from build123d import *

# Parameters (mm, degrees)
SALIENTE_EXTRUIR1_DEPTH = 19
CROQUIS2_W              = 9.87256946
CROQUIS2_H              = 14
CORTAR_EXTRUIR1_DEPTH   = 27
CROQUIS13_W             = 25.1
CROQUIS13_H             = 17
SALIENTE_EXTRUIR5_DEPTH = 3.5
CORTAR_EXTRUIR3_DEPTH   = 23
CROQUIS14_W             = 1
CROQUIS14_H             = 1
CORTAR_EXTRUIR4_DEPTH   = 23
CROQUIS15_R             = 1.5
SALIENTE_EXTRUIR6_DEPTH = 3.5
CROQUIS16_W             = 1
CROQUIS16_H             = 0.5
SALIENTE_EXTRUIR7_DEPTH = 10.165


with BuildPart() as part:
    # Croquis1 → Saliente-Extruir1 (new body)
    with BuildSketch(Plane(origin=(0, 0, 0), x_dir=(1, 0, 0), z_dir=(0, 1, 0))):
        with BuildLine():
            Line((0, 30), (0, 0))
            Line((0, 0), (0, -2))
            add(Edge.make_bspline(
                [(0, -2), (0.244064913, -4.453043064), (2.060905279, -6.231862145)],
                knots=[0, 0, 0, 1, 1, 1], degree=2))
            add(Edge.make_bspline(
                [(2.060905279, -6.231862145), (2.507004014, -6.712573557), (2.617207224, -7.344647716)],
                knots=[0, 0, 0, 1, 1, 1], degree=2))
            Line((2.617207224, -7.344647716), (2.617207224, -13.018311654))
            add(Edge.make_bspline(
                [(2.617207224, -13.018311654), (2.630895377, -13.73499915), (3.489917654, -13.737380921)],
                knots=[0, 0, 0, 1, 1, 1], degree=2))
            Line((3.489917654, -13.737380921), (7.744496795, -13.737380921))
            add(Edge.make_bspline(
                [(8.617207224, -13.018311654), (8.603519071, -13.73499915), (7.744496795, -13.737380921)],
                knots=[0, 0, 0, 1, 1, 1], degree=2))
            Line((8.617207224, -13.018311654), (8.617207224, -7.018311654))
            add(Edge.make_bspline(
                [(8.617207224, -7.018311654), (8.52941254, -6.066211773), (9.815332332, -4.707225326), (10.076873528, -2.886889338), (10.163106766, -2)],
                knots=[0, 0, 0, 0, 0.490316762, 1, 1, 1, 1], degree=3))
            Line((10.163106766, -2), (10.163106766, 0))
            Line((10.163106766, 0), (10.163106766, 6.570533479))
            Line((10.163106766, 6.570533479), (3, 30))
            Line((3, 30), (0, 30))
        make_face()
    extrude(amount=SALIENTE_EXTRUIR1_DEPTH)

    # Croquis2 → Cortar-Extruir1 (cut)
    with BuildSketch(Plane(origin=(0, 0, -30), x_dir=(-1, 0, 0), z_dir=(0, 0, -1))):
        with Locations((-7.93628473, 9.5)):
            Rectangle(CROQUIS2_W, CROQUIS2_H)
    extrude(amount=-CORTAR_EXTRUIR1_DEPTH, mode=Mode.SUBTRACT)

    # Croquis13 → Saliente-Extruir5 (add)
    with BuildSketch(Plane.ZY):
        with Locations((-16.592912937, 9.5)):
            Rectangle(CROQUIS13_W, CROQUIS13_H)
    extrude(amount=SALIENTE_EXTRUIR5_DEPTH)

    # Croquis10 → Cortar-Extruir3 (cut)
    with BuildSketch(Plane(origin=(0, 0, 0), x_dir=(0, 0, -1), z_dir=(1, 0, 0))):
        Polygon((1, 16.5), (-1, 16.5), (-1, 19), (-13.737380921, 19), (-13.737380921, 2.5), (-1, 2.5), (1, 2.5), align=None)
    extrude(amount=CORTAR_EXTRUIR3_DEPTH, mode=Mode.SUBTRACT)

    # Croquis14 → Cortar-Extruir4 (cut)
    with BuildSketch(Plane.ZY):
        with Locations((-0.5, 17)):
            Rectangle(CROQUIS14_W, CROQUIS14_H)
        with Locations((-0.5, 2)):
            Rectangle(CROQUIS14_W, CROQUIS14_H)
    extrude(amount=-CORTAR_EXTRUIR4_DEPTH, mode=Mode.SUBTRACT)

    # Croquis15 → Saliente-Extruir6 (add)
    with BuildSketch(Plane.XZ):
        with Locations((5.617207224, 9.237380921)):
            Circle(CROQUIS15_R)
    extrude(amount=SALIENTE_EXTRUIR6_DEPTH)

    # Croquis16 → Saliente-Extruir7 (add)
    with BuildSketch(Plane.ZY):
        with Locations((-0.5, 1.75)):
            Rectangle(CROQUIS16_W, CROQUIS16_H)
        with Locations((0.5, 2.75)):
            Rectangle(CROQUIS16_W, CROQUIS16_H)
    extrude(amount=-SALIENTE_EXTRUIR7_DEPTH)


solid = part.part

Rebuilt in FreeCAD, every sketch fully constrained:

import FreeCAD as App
import Part
import Sketcher

V = App.Vector
Q = App.Units.Quantity


def add_polygon(sketch, points):
    """Adds a closed chain of lines whose ends are joined by coincident constraints."""
    first, n = sketch.GeometryCount, len(points)
    for a, b in zip(points, points[1:] + points[:1]):
        sketch.addGeometry(Part.LineSegment(App.Vector(*a, 0), App.Vector(*b, 0)), False)
    for i in range(n):
        sketch.addConstraint(Sketcher.Constraint("Coincident", first + i, 2, first + (i + 1) % n, 1))

doc = App.newDocument("Part")
params = doc.addObject("Spreadsheet::Sheet", "Params")
for row, (alias, value) in enumerate([
    ("sketch1_width", "3 mm"),
    ("sketch1_height", "32 mm"),
    ("pad1_length", "19 mm"),
    ("sketch2_height", "14 mm"),
    ("pocket1_length", "27 mm"),
    ("sketch3_width", "17 mm"),
    ("sketch3_height", "25.1 mm"),
    ("pad2_length", "3.5 mm"),
    ("sketch4_width", "14 mm"),
    ("sketch4_height", "2 mm"),
    ("sketch4_width2", "2.5 mm"),
    ("pocket2_length", "23 mm"),
    ("sketch5_width", "1 mm"),
    ("pocket3_length", "23 mm"),
    ("sketch6_diameter", "3 mm"),
    ("pad3_length", "3.5 mm"),
    ("sketch7_height", "1 mm"),
    ("sketch7_width", "0.5 mm"),
    ("pad4_length", "10.165 mm"),
], start=1):
    params.set(f"A{row}", alias)
    params.set(f"B{row}", "=" + value)
    params.setAlias(f"B{row}", alias)

body = doc.addObject("PartDesign::Body", "Body")

# Sketch on XZ plane
sketch1 = body.newObject("Sketcher::SketchObject", "Sketch")
sketch1.AttachmentSupport = (doc.getObject("XZ_Plane"), [""])
sketch1.MapMode = "FlatFace"
sketch1.addGeometry([
    Part.LineSegment(V(0, -30, 0), V(0, 2, 0)),  # 0
    Part.BSplineCurve([V(0, 2, 0), V(0.244065, 4.453043, 0), V(2.060905, 6.231862, 0)], [3, 3], [0, 1], False, 2, [1, 1, 1], False),  # 1
    Part.BSplineCurve([V(2.060905, 6.231862, 0), V(2.507004, 6.712574, 0), V(2.617207, 7.344648, 0)], [3, 3], [0, 1], False, 2, [1, 1, 1], False),  # 2
    Part.LineSegment(V(2.617207, 7.344648, 0), V(2.617207, 13.018312, 0)),  # 3
    Part.BSplineCurve([V(2.617207, 13.018312, 0), V(2.630895, 13.734999, 0), V(3.489918, 13.737381, 0)], [3, 3], [0, 1], False, 2, [1, 1, 1], False),  # 4
    Part.LineSegment(V(3.489918, 13.737381, 0), V(7.744497, 13.737381, 0)),  # 5
    Part.BSplineCurve([V(8.617207, 13.018312, 0), V(8.603519, 13.734999, 0), V(7.744497, 13.737381, 0)], [3, 3], [0, 1], False, 2, [1, 1, 1], False),  # 6
    Part.LineSegment(V(8.617207, 13.018312, 0), V(8.617207, 7.018312, 0)),  # 7
    Part.BSplineCurve([V(8.617207, 7.018312, 0), V(8.529413, 6.066212, 0), V(9.815332, 4.707225, 0), V(10.076874, 2.886889, 0), V(10.163107, 2, 0)], [4, 1, 4], [0, 0.490316762, 1], False, 3, [1, 1, 1, 1, 1], False),  # 8
    Part.LineSegment(V(10.163107, 2, 0), V(10.163107, -6.570533, 0)),  # 9
    Part.LineSegment(V(10.163107, -6.570533, 0), V(3, -30, 0)),  # 10
    Part.LineSegment(V(3, -30, 0), V(0, -30, 0)),  # 11
], False)
sketch1.addConstraint([
    Sketcher.Constraint("Block", 1),
    Sketcher.Constraint("Block", 2),
    Sketcher.Constraint("Block", 4),
    Sketcher.Constraint("Block", 6),
    Sketcher.Constraint("Block", 8),
    Sketcher.Constraint("Coincident", 0, 2, 1, 1),
    Sketcher.Constraint("Coincident", 2, 2, 3, 1),
    Sketcher.Constraint("Coincident", 3, 2, 4, 1),
    Sketcher.Constraint("Coincident", 4, 2, 5, 1),
    Sketcher.Constraint("Coincident", 5, 2, 6, 2),
    Sketcher.Constraint("Coincident", 6, 1, 7, 1),
    Sketcher.Constraint("Coincident", 7, 2, 8, 1),
    Sketcher.Constraint("Coincident", 8, 2, 9, 1),
    Sketcher.Constraint("Coincident", 9, 2, 10, 1),
    Sketcher.Constraint("Coincident", 10, 2, 11, 1),
    Sketcher.Constraint("Coincident", 11, 2, 0, 1),
    Sketcher.Constraint("Vertical", 0),
    Sketcher.Constraint("Vertical", 9),
    Sketcher.Constraint("Horizontal", 11),
    Sketcher.Constraint("DistanceX", 11, 2, 11, 1, 3.0),
    Sketcher.Constraint("DistanceY", 0, 1, 0, 2, 32.0),
    Sketcher.Constraint("Angle", 10, Q("-107 deg")),
])
sketch1.setExpression("Constraints[19]", "Params.sketch1_width")
sketch1.setExpression("Constraints[20]", "Params.sketch1_height")
pad1 = body.newObject("PartDesign::Pad", "Pad")
pad1.Profile = sketch1
pad1.setExpression("Length", "Params.pad1_length")
pad1.Reversed = True

# Sketch on XY plane
sketch2 = body.newObject("Sketcher::SketchObject", "Sketch001")
sketch2.AttachmentSupport = (doc.getObject("XY_Plane"), [""])
sketch2.MapMode = "FlatFace"
sketch2.AttachmentOffset = App.Placement(V(0, 0, -30), App.Rotation())
add_polygon(sketch2, [(13, 16), (13, 2), (3, 2), (3, 16)])  # lines 0-3
sketch2.addConstraint([
    Sketcher.Constraint("Vertical", 0),
    Sketcher.Constraint("Horizontal", 1),
    Sketcher.Constraint("Vertical", 2),
    Sketcher.Constraint("Horizontal", 3),
    Sketcher.Constraint("DistanceY", 0, 2, 0, 1, 14.0),
    Sketcher.Constraint("DistanceX", -1, 1, 1, 2, 3.0),
    Sketcher.Constraint("DistanceY", -1, 1, 0, 2, 2.5),
    Sketcher.Constraint("DistanceX", 1, 2, 1, 1, 9.872569),
])
sketch2.setExpression("Constraints[8]", "Params.sketch2_height")
pocket1 = body.newObject("PartDesign::Pocket", "Pocket")
pocket1.Profile = sketch2
pocket1.setExpression("Length", "Params.pocket1_length")
pocket1.Reversed = True

# Sketch on YZ plane
sketch3 = body.newObject("Sketcher::SketchObject", "Sketch002")
sketch3.AttachmentSupport = (doc.getObject("YZ_Plane"), [""])
sketch3.MapMode = "FlatFace"
add_polygon(sketch3, [(18, -29), (1, -29), (1, -4), (18, -4)])  # lines 0-3
sketch3.addConstraint([
    Sketcher.Constraint("Horizontal", 0),
    Sketcher.Constraint("Vertical", 1),
    Sketcher.Constraint("Horizontal", 2),
    Sketcher.Constraint("Vertical", 3),
    Sketcher.Constraint("DistanceX", 0, 2, 0, 1, 17.0),
    Sketcher.Constraint("DistanceY", 1, 1, 1, 2, 25.1),
    Sketcher.Constraint("DistanceX", -1, 1, 0, 2, 1.0),
    Sketcher.Constraint("DistanceY", 0, 2, -1, 1, 29.142913),
])
sketch3.setExpression("Constraints[8]", "Params.sketch3_width")
sketch3.setExpression("Constraints[9]", "Params.sketch3_height")
pad2 = body.newObject("PartDesign::Pad", "Pad001")
pad2.Profile = sketch3
pad2.setExpression("Length", "Params.pad2_length")
pad2.Reversed = True

# Sketch on YZ plane
sketch4 = body.newObject("Sketcher::SketchObject", "Sketch003")
sketch4.AttachmentSupport = (doc.getObject("YZ_Plane"), [""])
sketch4.MapMode = "FlatFace"
add_polygon(sketch4, [(16.5, -1), (16.5, 1), (19, 1), (19, 13.7), (2.5, 13.7), (2.5, -1)])  # lines 0-5
sketch4.addConstraint([
    Sketcher.Constraint("Vertical", 0),
    Sketcher.Constraint("Horizontal", 1),
    Sketcher.Constraint("Vertical", 2),
    Sketcher.Constraint("Horizontal", 3),
    Sketcher.Constraint("Vertical", 4),
    Sketcher.Constraint("Horizontal", 5),
    Sketcher.Constraint("DistanceX", 5, 1, 5, 2, 14.0),
    Sketcher.Constraint("DistanceY", 0, 1, 0, 2, 2.0),
    Sketcher.Constraint("DistanceX", 1, 1, 1, 2, 2.5),
    Sketcher.Constraint("DistanceY", -1, 1, 0, 2, 1.0),
    Sketcher.Constraint("DistanceX", -1, 1, 1, 2, 19.0),
    Sketcher.Constraint("DistanceY", 2, 1, 2, 2, 12.737381),
])
sketch4.setExpression("Constraints[12]", "Params.sketch4_width")
sketch4.setExpression("Constraints[13]", "Params.sketch4_height")
sketch4.setExpression("Constraints[14]", "Params.sketch4_width2")
pocket2 = body.newObject("PartDesign::Pocket", "Pocket001")
pocket2.Profile = sketch4
pocket2.setExpression("Length", "Params.pocket2_length")
pocket2.Reversed = True

# Sketch on YZ plane
sketch5 = body.newObject("Sketcher::SketchObject", "Sketch004")
sketch5.AttachmentSupport = (doc.getObject("YZ_Plane"), [""])
sketch5.MapMode = "FlatFace"
add_polygon(sketch5, [(17.5, -1), (16.5, -1), (16.5, 0), (17.5, 0)])  # lines 0-3
add_polygon(sketch5, [(2.5, -1), (1.5, -1), (1.5, 0), (2.5, 0)])  # lines 4-7
sketch5.addConstraint([
    Sketcher.Constraint("Horizontal", 0),
    Sketcher.Constraint("Vertical", 1),
    Sketcher.Constraint("Horizontal", 2),
    Sketcher.Constraint("Vertical", 3),
    Sketcher.Constraint("Horizontal", 4),
    Sketcher.Constraint("Vertical", 5),
    Sketcher.Constraint("Horizontal", 6),
    Sketcher.Constraint("Vertical", 7),
    Sketcher.Constraint("PointOnObject", 1, 2, -1),
    Sketcher.Constraint("PointOnObject", 5, 2, -1),
    Sketcher.Constraint("Horizontal", 3, 2, 4, 2),
    Sketcher.Constraint("Equal", 2, 4),
    Sketcher.Constraint("Equal", 6, 1),
    Sketcher.Constraint("DistanceX", 0, 2, 0, 1, 1.0),
    Sketcher.Constraint("DistanceX", 4, 2, 0, 2, 15.0),
    Sketcher.Constraint("DistanceX", -1, 1, 0, 2, 16.5),
])
sketch5.setExpression("Constraints[21]", "Params.sketch5_width")
pocket3 = body.newObject("PartDesign::Pocket", "Pocket002")
pocket3.Profile = sketch5
pocket3.setExpression("Length", "Params.pocket3_length")
pocket3.Reversed = True

# Sketch on XZ plane
sketch6 = body.newObject("Sketcher::SketchObject", "Sketch005")
sketch6.AttachmentSupport = (doc.getObject("XZ_Plane"), [""])
sketch6.MapMode = "FlatFace"
sketch6.addGeometry(Part.Circle(V(5.6, 9.2, 0), V(0, 0, 1), 1.5), False)
sketch6.addConstraint([
    Sketcher.Constraint("Diameter", 0, 3.0),
    Sketcher.Constraint("DistanceY", -1, 1, 0, 3, 9.237381),
    Sketcher.Constraint("DistanceX", -1, 1, 0, 3, 5.617207),
])
sketch6.setExpression("Constraints[0]", "Params.sketch6_diameter")
pad3 = body.newObject("PartDesign::Pad", "Pad002")
pad3.Profile = sketch6
pad3.setExpression("Length", "Params.pad3_length")

# Sketch on YZ plane
sketch7 = body.newObject("Sketcher::SketchObject", "Sketch006")
sketch7.AttachmentSupport = (doc.getObject("YZ_Plane"), [""])
sketch7.MapMode = "FlatFace"
add_polygon(sketch7, [(2, -1), (1.5, -1), (1.5, 0), (2, 0)])  # lines 0-3
add_polygon(sketch7, [(3, 0), (2.5, 0), (2.5, 1), (3, 1)])  # lines 4-7
sketch7.addConstraint([
    Sketcher.Constraint("Horizontal", 0),
    Sketcher.Constraint("Vertical", 1),
    Sketcher.Constraint("Horizontal", 2),
    Sketcher.Constraint("Vertical", 3),
    Sketcher.Constraint("Horizontal", 4),
    Sketcher.Constraint("Vertical", 5),
    Sketcher.Constraint("Horizontal", 6),
    Sketcher.Constraint("Vertical", 7),
    Sketcher.Constraint("PointOnObject", 1, 2, -1),
    Sketcher.Constraint("PointOnObject", 4, 2, -1),
    Sketcher.Constraint("Equal", 2, 4),
    Sketcher.Constraint("Equal", 3, 5),
    Sketcher.Constraint("DistanceY", 1, 1, 1, 2, 1.0),
    Sketcher.Constraint("DistanceX", 0, 2, 0, 1, 0.5),
    Sketcher.Constraint("DistanceX", -1, 1, 2, 2, 2.0),
    Sketcher.Constraint("DistanceX", -1, 1, 6, 2, 3.0),
])
sketch7.setExpression("Constraints[20]", "Params.sketch7_height")
sketch7.setExpression("Constraints[21]", "Params.sketch7_width")
pad4 = body.newObject("PartDesign::Pad", "Pad003")
pad4.Profile = sketch7
pad4.setExpression("Length", "Params.pad4_length")

doc.recompute()
